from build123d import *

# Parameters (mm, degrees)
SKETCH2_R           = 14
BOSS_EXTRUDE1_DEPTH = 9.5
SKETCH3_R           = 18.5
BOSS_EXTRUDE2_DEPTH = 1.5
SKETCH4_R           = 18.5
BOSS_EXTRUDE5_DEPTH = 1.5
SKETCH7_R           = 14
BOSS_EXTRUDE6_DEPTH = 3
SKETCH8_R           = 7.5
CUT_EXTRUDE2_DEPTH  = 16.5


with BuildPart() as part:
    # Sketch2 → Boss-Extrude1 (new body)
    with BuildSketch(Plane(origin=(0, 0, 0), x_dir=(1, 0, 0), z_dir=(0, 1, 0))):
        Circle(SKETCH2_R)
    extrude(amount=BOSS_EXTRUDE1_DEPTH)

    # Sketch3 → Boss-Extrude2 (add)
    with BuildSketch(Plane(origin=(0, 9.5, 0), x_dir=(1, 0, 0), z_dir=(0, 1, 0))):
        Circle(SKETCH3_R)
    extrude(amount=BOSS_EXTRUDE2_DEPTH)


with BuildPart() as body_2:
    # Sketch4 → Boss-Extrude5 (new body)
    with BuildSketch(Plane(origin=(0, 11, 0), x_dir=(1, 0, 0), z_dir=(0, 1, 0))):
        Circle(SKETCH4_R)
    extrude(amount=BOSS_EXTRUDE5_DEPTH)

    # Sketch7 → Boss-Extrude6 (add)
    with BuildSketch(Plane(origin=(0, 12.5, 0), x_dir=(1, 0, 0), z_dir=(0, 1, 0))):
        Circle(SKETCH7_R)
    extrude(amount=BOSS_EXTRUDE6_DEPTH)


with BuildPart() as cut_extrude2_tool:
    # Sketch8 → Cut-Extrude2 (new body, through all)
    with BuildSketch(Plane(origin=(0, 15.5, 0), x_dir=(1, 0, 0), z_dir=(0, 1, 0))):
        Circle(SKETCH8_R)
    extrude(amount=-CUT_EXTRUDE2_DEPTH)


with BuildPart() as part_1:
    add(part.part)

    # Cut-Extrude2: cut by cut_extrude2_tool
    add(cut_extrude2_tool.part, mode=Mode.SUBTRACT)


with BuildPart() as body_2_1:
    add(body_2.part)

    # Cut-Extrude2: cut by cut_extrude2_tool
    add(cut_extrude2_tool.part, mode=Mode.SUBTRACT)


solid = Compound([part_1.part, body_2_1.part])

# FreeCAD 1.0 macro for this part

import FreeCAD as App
import Part
import Sketcher
from FreeCAD import Vector
Q = App.Units.Quantity

doc = App.newDocument("Part")
params = doc.addObject("Spreadsheet::Sheet", "Params")
for row, (alias, value) in enumerate([
    ("sketch1_diameter", "28 mm"),
    ("pad1_length", "9.5 mm"),
    ("sketch2_diameter", "37 mm"),
    ("pad2_length", "1.5 mm"),
    ("sketch3_diameter", "37 mm"),
    ("pad3_length", "1.5 mm"),
    ("sketch4_diameter", "28 mm"),
    ("pad4_length", "3 mm"),
    ("sketch5_diameter", "15 mm"),
    ("pad5_length", "16.5 mm"),
], start=1):
    params.set(f"A{row}", alias)
    params.set(f"B{row}", "=" + value)
    params.setAlias(f"B{row}", alias)

body = doc.addObject("PartDesign::Body", "Body")

sketch1 = body.newObject("Sketcher::SketchObject", "Sketch")
sketch1.AttachmentSupport = (doc.getObject("XZ_Plane"), [""])
sketch1.MapMode = "FlatFace"
sketch1.addGeometry(Part.Circle(Vector(0, 0, 0), Vector(0, 0, 1), 14), False)
sketch1.addConstraint([
    Sketcher.Constraint("Coincident", 0, 3, -1, 1),
    Sketcher.Constraint("Diameter", 0, Q("28 mm")),
])
sketch1.setExpression("Constraints[1]", "Params.sketch1_diameter")
pad1 = body.newObject("PartDesign::Pad", "Pad")
pad1.Profile = sketch1
pad1.setExpression("Length", "Params.pad1_length")
pad1.Reversed = True

sketch2 = body.newObject("Sketcher::SketchObject", "Sketch001")
sketch2.AttachmentSupport = (doc.getObject("XZ_Plane"), [""])
sketch2.MapMode = "FlatFace"
sketch2.AttachmentOffset = App.Placement(Vector(0, 0, -9.5), App.Rotation())
sketch2.addGeometry(Part.Circle(Vector(0, 0, 0), Vector(0, 0, 1), 18), False)
sketch2.addConstraint([
    Sketcher.Constraint("Coincident", 0, 3, -1, 1),
    Sketcher.Constraint("Diameter", 0, Q("37 mm")),
])
sketch2.setExpression("Constraints[1]", "Params.sketch2_diameter")
pad2 = body.newObject("PartDesign::Pad", "Pad001")
pad2.Profile = sketch2
pad2.setExpression("Length", "Params.pad2_length")
pad2.Reversed = True
body2 = doc.addObject("PartDesign::Body", "Body001")

sketch3 = body2.newObject("Sketcher::SketchObject", "Sketch002")
sketch3.AttachmentSupport = (doc.getObject("XZ_Plane001"), [""])
sketch3.MapMode = "FlatFace"
sketch3.AttachmentOffset = App.Placement(Vector(0, 0, -11), App.Rotation())
sketch3.addGeometry(Part.Circle(Vector(0, 0, 0), Vector(0, 0, 1), 18), False)
sketch3.addConstraint([
    Sketcher.Constraint("Coincident", 0, 3, -1, 1),
    Sketcher.Constraint("Diameter", 0, Q("37 mm")),
])
sketch3.setExpression("Constraints[1]", "Params.sketch3_diameter")
pad3 = body2.newObject("PartDesign::Pad", "Pad002")
pad3.Profile = sketch3
pad3.setExpression("Length", "Params.pad3_length")
pad3.Reversed = True

sketch4 = body2.newObject("Sketcher::SketchObject", "Sketch003")
sketch4.AttachmentSupport = (doc.getObject("XZ_Plane001"), [""])
sketch4.MapMode = "FlatFace"
sketch4.AttachmentOffset = App.Placement(Vector(0, 0, -12.5), App.Rotation())
sketch4.addGeometry(Part.Circle(Vector(0, 0, 0), Vector(0, 0, 1), 14), False)
sketch4.addConstraint([
    Sketcher.Constraint("Coincident", 0, 3, -1, 1),
    Sketcher.Constraint("Diameter", 0, Q("28 mm")),
])
sketch4.setExpression("Constraints[1]", "Params.sketch4_diameter")
pad4 = body2.newObject("PartDesign::Pad", "Pad003")
pad4.Profile = sketch4
pad4.setExpression("Length", "Params.pad4_length")
pad4.Reversed = True
body3 = doc.addObject("PartDesign::Body", "Body002")

sketch5 = body3.newObject("Sketcher::SketchObject", "Sketch004")
sketch5.AttachmentSupport = (doc.getObject("XZ_Plane002"), [""])
sketch5.MapMode = "FlatFace"
sketch5.AttachmentOffset = App.Placement(Vector(0, 0, -15.5), App.Rotation())
sketch5.addGeometry(Part.Circle(Vector(0, 0, 0), Vector(0, 0, 1), 8), False)
sketch5.addConstraint([
    Sketcher.Constraint("Coincident", 0, 3, -1, 1),
    Sketcher.Constraint("Diameter", 0, Q("15 mm")),
])
sketch5.setExpression("Constraints[1]", "Params.sketch5_diameter")
pad5 = body3.newObject("PartDesign::Pad", "Pad004")
pad5.Profile = sketch5
pad5.setExpression("Length", "Params.pad5_length")
doc.recompute()

body4 = doc.addObject("PartDesign::Body", "Body003")
body4.BaseFeature = body3
boolean = body.newObject("PartDesign::Boolean", "Boolean")
boolean.Type = "Cut"
boolean.addObjects([body4])
doc.recompute()

boolean2 = body2.newObject("PartDesign::Boolean", "Boolean001")
boolean2.Type = "Cut"
boolean2.addObjects([body3])

doc.recompute()
